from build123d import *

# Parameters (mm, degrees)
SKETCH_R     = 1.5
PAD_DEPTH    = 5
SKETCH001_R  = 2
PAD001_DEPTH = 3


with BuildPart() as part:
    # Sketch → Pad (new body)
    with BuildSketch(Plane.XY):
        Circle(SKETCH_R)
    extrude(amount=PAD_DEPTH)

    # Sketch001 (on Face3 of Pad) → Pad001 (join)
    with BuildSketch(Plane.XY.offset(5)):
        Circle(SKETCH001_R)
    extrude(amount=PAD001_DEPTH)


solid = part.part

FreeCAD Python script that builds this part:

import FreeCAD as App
import Part
import Sketcher
from FreeCAD import Vector

doc = App.newDocument("Part")
body = doc.addObject("PartDesign::Body", "Body")

sketch1 = doc.addObject("Sketcher::SketchObject", "Sketch")
body.addObject(sketch1)
sketch1.AttachmentSupport = (doc.XY_Plane, [""])
sketch1.MapMode = "FlatFace"
sketch1.addGeometry(Part.Circle(Vector(0, 0, 0), Vector(0, 0, 1), 1.5), False)
sketch1.addConstraint([
    Sketcher.Constraint("Coincident", 0, 3, -1, 1),
    Sketcher.Constraint("Diameter", 0, 3.0),
])
pad1 = doc.addObject("PartDesign::Pad", "Pad")
body.addObject(pad1)
pad1.Profile = sketch1
pad1.Length = 5

sketch2 = doc.addObject("Sketcher::SketchObject", "Sketch001")
body.addObject(sketch2)
sketch2.AttachmentSupport = (doc.XY_Plane, [""])
sketch2.MapMode = "FlatFace"
sketch2.AttachmentOffset = App.Placement(Vector(0, 0, 5), App.Rotation())
sketch2.addGeometry(Part.Circle(Vector(0, 0, 0), Vector(0, 0, 1), 2), False)
sketch2.addConstraint([
    Sketcher.Constraint("Coincident", 0, 3, -1, 1),
    Sketcher.Constraint("Diameter", 0, 4.0),
])
pad2 = doc.addObject("PartDesign::Pad", "Pad001")
body.addObject(pad2)
pad2.Profile = sketch2
pad2.Length = 3

doc.recompute()
